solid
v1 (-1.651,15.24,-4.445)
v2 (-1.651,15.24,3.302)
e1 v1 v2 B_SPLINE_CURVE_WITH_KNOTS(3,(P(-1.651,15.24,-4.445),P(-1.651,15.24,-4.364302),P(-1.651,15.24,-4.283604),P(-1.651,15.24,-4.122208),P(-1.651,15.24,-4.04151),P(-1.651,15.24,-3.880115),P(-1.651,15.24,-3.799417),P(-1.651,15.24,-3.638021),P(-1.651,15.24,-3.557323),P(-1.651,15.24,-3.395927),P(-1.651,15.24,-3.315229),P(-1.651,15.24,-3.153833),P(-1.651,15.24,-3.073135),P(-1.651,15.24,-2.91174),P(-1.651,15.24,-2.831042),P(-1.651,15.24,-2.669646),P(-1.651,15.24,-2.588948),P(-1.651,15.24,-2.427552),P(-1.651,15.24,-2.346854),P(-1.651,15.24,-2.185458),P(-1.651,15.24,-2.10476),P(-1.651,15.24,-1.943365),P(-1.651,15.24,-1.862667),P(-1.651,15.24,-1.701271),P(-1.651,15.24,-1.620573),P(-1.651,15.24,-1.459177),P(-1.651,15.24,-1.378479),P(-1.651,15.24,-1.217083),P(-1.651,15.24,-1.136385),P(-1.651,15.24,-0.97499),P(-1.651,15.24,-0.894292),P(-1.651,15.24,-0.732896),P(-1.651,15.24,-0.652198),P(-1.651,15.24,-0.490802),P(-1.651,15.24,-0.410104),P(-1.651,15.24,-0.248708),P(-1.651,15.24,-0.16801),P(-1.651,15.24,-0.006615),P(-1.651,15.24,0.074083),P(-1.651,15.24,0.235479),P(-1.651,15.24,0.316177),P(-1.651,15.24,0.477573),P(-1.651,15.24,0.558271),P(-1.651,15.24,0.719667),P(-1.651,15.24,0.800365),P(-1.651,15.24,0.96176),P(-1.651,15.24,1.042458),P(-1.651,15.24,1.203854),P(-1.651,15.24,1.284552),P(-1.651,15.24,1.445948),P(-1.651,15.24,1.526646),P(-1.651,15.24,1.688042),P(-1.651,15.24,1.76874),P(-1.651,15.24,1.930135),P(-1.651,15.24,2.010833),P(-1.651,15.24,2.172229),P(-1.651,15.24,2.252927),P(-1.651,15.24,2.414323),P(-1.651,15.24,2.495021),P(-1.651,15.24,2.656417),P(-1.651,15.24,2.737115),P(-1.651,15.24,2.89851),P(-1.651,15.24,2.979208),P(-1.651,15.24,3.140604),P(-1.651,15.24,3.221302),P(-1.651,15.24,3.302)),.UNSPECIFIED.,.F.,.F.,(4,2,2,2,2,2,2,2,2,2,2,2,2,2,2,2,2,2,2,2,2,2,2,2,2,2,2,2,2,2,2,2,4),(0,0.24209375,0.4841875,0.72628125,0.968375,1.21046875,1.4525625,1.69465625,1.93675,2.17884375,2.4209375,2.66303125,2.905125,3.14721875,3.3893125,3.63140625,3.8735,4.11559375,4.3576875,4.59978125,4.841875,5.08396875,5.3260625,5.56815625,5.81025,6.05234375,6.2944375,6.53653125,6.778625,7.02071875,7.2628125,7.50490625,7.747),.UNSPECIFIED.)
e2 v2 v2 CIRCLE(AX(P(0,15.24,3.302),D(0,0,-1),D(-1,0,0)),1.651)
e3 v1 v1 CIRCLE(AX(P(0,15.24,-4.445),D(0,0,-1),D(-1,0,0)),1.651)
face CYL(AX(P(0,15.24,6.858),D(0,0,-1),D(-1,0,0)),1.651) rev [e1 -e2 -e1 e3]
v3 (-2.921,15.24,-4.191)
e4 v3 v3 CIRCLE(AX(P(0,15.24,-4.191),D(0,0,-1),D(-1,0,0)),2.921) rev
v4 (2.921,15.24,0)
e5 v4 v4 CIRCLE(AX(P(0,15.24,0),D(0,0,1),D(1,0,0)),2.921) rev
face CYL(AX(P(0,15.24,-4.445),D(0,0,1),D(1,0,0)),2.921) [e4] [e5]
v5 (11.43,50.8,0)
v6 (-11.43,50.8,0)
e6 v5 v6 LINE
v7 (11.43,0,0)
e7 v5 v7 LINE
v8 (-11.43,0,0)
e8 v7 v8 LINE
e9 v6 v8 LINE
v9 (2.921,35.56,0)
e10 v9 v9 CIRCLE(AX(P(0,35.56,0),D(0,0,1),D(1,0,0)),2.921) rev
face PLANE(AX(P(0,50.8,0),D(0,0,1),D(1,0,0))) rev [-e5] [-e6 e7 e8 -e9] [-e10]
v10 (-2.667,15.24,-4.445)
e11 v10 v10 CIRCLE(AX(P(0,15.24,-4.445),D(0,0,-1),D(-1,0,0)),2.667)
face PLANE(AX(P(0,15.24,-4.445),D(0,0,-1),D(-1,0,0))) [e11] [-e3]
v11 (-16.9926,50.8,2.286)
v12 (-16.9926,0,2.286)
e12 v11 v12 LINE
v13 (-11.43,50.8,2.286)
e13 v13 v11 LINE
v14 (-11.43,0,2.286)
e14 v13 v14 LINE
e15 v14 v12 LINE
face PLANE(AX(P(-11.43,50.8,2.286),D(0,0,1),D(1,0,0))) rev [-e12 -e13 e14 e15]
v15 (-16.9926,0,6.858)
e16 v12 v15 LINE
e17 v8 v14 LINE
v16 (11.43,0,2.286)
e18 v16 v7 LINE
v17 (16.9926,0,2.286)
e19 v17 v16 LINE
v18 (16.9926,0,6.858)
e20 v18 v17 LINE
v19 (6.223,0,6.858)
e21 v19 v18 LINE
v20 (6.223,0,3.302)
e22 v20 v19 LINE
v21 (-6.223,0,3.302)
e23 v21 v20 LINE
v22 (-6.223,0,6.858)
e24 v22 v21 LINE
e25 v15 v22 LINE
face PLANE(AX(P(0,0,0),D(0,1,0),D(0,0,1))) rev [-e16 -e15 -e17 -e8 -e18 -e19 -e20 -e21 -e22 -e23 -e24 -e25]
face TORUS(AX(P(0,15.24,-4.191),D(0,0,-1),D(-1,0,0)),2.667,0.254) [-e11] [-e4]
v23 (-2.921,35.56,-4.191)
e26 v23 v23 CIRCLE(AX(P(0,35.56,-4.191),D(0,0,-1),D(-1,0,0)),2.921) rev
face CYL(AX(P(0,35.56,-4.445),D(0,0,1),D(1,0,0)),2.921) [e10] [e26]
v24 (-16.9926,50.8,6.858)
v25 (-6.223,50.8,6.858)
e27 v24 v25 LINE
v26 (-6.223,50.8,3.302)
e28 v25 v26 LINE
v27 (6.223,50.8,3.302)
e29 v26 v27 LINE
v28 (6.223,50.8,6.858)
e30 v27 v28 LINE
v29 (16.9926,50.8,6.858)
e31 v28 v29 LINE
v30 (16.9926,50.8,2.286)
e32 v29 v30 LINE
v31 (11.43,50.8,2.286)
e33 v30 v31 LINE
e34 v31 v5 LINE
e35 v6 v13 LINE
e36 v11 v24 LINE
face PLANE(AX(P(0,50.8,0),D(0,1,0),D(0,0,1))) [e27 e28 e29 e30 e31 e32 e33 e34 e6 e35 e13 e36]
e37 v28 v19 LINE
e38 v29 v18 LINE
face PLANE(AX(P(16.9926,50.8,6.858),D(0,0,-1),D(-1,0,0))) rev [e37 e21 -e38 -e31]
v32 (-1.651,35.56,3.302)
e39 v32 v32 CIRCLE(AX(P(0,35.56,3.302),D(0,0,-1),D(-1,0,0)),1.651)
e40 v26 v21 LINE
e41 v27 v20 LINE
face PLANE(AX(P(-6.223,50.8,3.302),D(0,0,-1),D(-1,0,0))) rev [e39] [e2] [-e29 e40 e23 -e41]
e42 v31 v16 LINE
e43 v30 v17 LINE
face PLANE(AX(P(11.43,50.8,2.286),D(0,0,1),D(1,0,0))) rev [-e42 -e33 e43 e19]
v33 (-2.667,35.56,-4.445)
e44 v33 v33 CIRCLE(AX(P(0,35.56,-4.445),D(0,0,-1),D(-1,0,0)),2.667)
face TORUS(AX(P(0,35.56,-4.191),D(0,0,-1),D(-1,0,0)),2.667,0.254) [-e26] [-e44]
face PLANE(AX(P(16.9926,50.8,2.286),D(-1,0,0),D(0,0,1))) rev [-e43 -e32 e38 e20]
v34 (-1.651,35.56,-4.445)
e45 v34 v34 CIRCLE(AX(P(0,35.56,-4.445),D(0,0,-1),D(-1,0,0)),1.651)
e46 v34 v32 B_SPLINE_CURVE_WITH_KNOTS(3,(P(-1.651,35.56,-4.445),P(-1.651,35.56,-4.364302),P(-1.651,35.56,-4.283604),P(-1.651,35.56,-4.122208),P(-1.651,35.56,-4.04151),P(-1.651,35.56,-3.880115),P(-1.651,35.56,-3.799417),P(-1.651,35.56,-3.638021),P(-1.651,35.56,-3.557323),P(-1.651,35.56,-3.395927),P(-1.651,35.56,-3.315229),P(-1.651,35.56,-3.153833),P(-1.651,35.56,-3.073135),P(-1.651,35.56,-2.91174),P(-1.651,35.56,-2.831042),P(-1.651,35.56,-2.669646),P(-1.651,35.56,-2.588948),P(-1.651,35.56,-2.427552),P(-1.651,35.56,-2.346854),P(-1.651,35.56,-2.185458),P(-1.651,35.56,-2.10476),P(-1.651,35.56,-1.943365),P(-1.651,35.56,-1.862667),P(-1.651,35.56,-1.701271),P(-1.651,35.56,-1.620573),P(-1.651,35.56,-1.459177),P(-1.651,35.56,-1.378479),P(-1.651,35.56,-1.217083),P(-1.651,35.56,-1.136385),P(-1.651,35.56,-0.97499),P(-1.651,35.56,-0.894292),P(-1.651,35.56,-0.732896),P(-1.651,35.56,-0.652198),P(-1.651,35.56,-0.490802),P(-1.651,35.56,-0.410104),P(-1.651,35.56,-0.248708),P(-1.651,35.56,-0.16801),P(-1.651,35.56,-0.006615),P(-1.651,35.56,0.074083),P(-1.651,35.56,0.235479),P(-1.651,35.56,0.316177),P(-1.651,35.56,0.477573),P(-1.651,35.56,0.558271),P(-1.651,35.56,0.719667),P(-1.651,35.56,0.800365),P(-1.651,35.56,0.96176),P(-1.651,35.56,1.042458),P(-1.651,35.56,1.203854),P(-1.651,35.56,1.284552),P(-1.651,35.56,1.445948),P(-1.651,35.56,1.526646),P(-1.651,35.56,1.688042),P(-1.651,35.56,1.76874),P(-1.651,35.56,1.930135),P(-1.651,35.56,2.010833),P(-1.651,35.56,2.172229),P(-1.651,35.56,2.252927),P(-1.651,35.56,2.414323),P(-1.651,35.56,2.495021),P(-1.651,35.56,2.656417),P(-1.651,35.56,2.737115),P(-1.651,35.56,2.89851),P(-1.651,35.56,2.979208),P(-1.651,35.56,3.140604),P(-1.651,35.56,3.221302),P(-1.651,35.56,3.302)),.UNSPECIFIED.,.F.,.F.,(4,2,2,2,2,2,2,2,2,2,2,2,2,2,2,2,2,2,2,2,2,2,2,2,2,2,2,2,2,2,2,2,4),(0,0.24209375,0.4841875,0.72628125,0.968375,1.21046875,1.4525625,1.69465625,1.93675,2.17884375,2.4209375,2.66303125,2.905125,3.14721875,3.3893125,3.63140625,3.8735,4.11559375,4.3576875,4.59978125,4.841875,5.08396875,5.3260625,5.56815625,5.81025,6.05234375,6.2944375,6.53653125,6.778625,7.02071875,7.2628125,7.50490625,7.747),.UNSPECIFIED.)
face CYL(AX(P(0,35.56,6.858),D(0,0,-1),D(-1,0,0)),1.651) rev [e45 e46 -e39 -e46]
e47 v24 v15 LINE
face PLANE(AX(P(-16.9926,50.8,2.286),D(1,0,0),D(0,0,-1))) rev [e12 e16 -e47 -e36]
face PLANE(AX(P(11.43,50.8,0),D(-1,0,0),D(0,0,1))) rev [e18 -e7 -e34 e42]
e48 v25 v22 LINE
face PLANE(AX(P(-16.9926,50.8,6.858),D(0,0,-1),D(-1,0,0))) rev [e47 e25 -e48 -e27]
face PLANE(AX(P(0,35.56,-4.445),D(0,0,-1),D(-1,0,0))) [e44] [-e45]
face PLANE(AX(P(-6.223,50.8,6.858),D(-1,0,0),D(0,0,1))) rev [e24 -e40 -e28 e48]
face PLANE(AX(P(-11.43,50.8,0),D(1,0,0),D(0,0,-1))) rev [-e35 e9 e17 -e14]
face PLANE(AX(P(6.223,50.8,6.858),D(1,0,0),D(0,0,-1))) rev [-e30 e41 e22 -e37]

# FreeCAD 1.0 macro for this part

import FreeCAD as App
import Part
import Sketcher
Q = App.Units.Quantity


def edges_at(feature, points):
    """Names of the edges that pass closest to the given points."""
    edges = feature.Shape.Edges
    near = lambda p: min(range(len(edges)), key=lambda i: edges[i].distToShape(Part.Vertex(*p))[0])
    return sorted({f"Edge{near(p) + 1}" for p in points})


def add_polygon(sketch, points):
    """Adds a closed chain of lines whose ends are joined by coincident constraints."""
    first, n = sketch.GeometryCount, len(points)
    for a, b in zip(points, points[1:] + points[:1]):
        sketch.addGeometry(Part.LineSegment(App.Vector(*a, 0), App.Vector(*b, 0)), False)
    for i in range(n):
        sketch.addConstraint(Sketcher.Constraint("Coincident", first + i, 2, first + (i + 1) % n, 1))

doc = App.newDocument("Part")
params = doc.addObject("Spreadsheet::Sheet", "Params")
for row, (alias, value) in enumerate([
    ("sketch1_width", "0.9 in"),
    ("sketch1_width2", "0.49 in"),
    ("sketch1_height", "0.09 in"),
    ("sketch1_height2", "0.18 in"),
    ("sketch1_height3", "0.14 in"),
    ("pad1_length", "2 in"),
    ("sketch2_diameter", "0.23 in"),
    ("pad2_length", "0.175 in"),
    ("fillet_radius", "0.01 in"),
    ("sketch3_diameter", "0.13 in"),
    ("sketch4_diameter", "0.23 in"),
    ("pad3_length", "0.175 in"),
    ("fillet2_radius", "0.01 in"),
    ("sketch5_diameter", "0.13 in"),
], start=1):
    params.set(f"A{row}", alias)
    params.set(f"B{row}", "=" + value)
    params.setAlias(f"B{row}", alias)

body = doc.addObject("PartDesign::Body", "Body")

# Sketch on XZ plane
sketch1 = body.newObject("Sketcher::SketchObject", "Sketch")
sketch1.AttachmentSupport = (doc.getObject("XZ_Plane"), [""])
sketch1.MapMode = "FlatFace"
add_polygon(sketch1, [(11.4, 0), (-11.4, 0), (-11.4, 2.3), (-17, 2.3), (-17, 6.9), (-6.2, 6.9), (-6.2, 3.3), (6.2, 3.3), (6.2, 6.9), (17, 6.9), (17, 2.3), (11.4, 2.3)])  # lines 0-11
sketch1.addConstraint(Sketcher.Constraint("Horizontal", 0))
sketch1.addConstraint(Sketcher.Constraint("Vertical", 1))
sketch1.addConstraint(Sketcher.Constraint("Horizontal", 2))
sketch1.addConstraint(Sketcher.Constraint("Vertical", 3))
sketch1.addConstraint(Sketcher.Constraint("Horizontal", 4))
sketch1.addConstraint(Sketcher.Constraint("Vertical", 5))
sketch1.addConstraint(Sketcher.Constraint("Horizontal", 6))
sketch1.addConstraint(Sketcher.Constraint("Vertical", 7))
sketch1.addConstraint(Sketcher.Constraint("Horizontal", 8))
sketch1.addConstraint(Sketcher.Constraint("Vertical", 9))
sketch1.addConstraint(Sketcher.Constraint("Horizontal", 10))
sketch1.addConstraint(Sketcher.Constraint("Vertical", 11))
sketch1.addConstraint(Sketcher.Constraint("Symmetric", 0, 2, 11, 2, -1, 1))
sketch1.addConstraint(Sketcher.Constraint("Symmetric", 4, 2, 7, 2, -2))
sketch1.addConstraint(Sketcher.Constraint("Symmetric", 2, 2, 9, 2, -2))
sketch1.addConstraint(Sketcher.Constraint("DistanceX", 0, 2, 0, 1, Q("0.9 in")))
sketch1.addConstraint(Sketcher.Constraint("DistanceX", 6, 1, 6, 2, Q("0.49 in")))
sketch1.addConstraint(Sketcher.Constraint("DistanceY", 1, 1, 1, 2, Q("0.09 in")))
sketch1.addConstraint(Sketcher.Constraint("DistanceY", 3, 1, 3, 2, Q("0.18 in")))
sketch1.addConstraint(Sketcher.Constraint("DistanceY", 5, 2, 5, 1, Q("0.14 in")))
sketch1.addConstraint(Sketcher.Constraint("DistanceX", 2, 2, 2, 1, Q("0.219 in")))
sketch1.setExpression("Constraints[27]", "Params.sketch1_width")
sketch1.setExpression("Constraints[28]", "Params.sketch1_width2")
sketch1.setExpression("Constraints[29]", "Params.sketch1_height")
sketch1.setExpression("Constraints[30]", "Params.sketch1_height2")
sketch1.setExpression("Constraints[31]", "Params.sketch1_height3")
pad1 = body.newObject("PartDesign::Pad", "Pad")
pad1.Profile = sketch1
pad1.setExpression("Length", "Params.pad1_length")
pad1.Reversed = True

# Sketch on XY plane
sketch2 = body.newObject("Sketcher::SketchObject", "Sketch001")
sketch2.AttachmentSupport = (doc.getObject("XY_Plane"), [""])
sketch2.MapMode = "FlatFace"
sketch2.addGeometry(Part.Circle(App.Vector(0, 15.2, 0), App.Vector(0, 0, 1), 2.9), False)
sketch2.addConstraint(Sketcher.Constraint("PointOnObject", 0, 3, -2))
sketch2.addConstraint(Sketcher.Constraint("Diameter", 0, Q("0.23 in")))
sketch2.addConstraint(Sketcher.Constraint("DistanceY", -1, 1, 0, 3, Q("0.6 in")))
sketch2.setExpression("Constraints[1]", "Params.sketch2_diameter")
pad2 = body.newObject("PartDesign::Pad", "Pad001")
pad2.Profile = sketch2
pad2.setExpression("Length", "Params.pad2_length")
pad2.Reversed = True
doc.recompute()

fillet = body.newObject("PartDesign::Fillet", "Fillet")
fillet.Base = (pad2, edges_at(pad2, [(-2.921, 15.24, -4.445)]))
fillet.setExpression("Radius", "Params.fillet_radius")

# Sketch on XY plane
sketch3 = body.newObject("Sketcher::SketchObject", "Sketch002")
sketch3.AttachmentSupport = (doc.getObject("XY_Plane"), [""])
sketch3.MapMode = "FlatFace"
sketch3.AttachmentOffset = App.Placement(App.Vector(0, 0, -0.175 * 25.4), App.Rotation())
sketch3.addGeometry(Part.Circle(App.Vector(0, 15.2, 0), App.Vector(0, 0, 1), 1.7), False)
sketch3.addConstraint(Sketcher.Constraint("PointOnObject", 0, 3, -2))
sketch3.addConstraint(Sketcher.Constraint("Diameter", 0, Q("0.13 in")))
sketch3.addConstraint(Sketcher.Constraint("DistanceY", -1, 1, 0, 3, Q("0.6 in")))
sketch3.setExpression("Constraints[1]", "Params.sketch3_diameter")
pocket1 = body.newObject("PartDesign::Pocket", "Pocket")
pocket1.Profile = sketch3
pocket1.Type = "ThroughAll"
pocket1.Reversed = True

# Sketch on XY plane
sketch4 = body.newObject("Sketcher::SketchObject", "Sketch003")
sketch4.AttachmentSupport = (doc.getObject("XY_Plane"), [""])
sketch4.MapMode = "FlatFace"
sketch4.addGeometry(Part.Circle(App.Vector(0, 35.6, 0), App.Vector(0, 0, 1), 2.9), False)
sketch4.addConstraint(Sketcher.Constraint("PointOnObject", 0, 3, -2))
sketch4.addConstraint(Sketcher.Constraint("Diameter", 0, Q("0.23 in")))
sketch4.addConstraint(Sketcher.Constraint("DistanceY", -1, 1, 0, 3, Q("1.4 in")))
sketch4.setExpression("Constraints[1]", "Params.sketch4_diameter")
pad3 = body.newObject("PartDesign::Pad", "Pad002")
pad3.Profile = sketch4
pad3.setExpression("Length", "Params.pad3_length")
pad3.Reversed = True
doc.recompute()

fillet2 = body.newObject("PartDesign::Fillet", "Fillet001")
fillet2.Base = (pad3, edges_at(pad3, [(-2.921, 35.56, -4.445)]))
fillet2.setExpression("Radius", "Params.fillet2_radius")

# Sketch on XY plane
sketch5 = body.newObject("Sketcher::SketchObject", "Sketch004")
sketch5.AttachmentSupport = (doc.getObject("XY_Plane"), [""])
sketch5.MapMode = "FlatFace"
sketch5.AttachmentOffset = App.Placement(App.Vector(0, 0, -0.175 * 25.4), App.Rotation())
sketch5.addGeometry(Part.Circle(App.Vector(0, 35.6, 0), App.Vector(0, 0, 1), 1.7), False)
sketch5.addConstraint(Sketcher.Constraint("PointOnObject", 0, 3, -2))
sketch5.addConstraint(Sketcher.Constraint("Diameter", 0, Q("0.13 in")))
sketch5.addConstraint(Sketcher.Constraint("DistanceY", -1, 1, 0, 3, Q("1.4 in")))
sketch5.setExpression("Constraints[1]", "Params.sketch5_diameter")
pocket2 = body.newObject("PartDesign::Pocket", "Pocket001")
pocket2.Profile = sketch5
pocket2.Type = "ThroughAll"
pocket2.Reversed = True

doc.recompute()
